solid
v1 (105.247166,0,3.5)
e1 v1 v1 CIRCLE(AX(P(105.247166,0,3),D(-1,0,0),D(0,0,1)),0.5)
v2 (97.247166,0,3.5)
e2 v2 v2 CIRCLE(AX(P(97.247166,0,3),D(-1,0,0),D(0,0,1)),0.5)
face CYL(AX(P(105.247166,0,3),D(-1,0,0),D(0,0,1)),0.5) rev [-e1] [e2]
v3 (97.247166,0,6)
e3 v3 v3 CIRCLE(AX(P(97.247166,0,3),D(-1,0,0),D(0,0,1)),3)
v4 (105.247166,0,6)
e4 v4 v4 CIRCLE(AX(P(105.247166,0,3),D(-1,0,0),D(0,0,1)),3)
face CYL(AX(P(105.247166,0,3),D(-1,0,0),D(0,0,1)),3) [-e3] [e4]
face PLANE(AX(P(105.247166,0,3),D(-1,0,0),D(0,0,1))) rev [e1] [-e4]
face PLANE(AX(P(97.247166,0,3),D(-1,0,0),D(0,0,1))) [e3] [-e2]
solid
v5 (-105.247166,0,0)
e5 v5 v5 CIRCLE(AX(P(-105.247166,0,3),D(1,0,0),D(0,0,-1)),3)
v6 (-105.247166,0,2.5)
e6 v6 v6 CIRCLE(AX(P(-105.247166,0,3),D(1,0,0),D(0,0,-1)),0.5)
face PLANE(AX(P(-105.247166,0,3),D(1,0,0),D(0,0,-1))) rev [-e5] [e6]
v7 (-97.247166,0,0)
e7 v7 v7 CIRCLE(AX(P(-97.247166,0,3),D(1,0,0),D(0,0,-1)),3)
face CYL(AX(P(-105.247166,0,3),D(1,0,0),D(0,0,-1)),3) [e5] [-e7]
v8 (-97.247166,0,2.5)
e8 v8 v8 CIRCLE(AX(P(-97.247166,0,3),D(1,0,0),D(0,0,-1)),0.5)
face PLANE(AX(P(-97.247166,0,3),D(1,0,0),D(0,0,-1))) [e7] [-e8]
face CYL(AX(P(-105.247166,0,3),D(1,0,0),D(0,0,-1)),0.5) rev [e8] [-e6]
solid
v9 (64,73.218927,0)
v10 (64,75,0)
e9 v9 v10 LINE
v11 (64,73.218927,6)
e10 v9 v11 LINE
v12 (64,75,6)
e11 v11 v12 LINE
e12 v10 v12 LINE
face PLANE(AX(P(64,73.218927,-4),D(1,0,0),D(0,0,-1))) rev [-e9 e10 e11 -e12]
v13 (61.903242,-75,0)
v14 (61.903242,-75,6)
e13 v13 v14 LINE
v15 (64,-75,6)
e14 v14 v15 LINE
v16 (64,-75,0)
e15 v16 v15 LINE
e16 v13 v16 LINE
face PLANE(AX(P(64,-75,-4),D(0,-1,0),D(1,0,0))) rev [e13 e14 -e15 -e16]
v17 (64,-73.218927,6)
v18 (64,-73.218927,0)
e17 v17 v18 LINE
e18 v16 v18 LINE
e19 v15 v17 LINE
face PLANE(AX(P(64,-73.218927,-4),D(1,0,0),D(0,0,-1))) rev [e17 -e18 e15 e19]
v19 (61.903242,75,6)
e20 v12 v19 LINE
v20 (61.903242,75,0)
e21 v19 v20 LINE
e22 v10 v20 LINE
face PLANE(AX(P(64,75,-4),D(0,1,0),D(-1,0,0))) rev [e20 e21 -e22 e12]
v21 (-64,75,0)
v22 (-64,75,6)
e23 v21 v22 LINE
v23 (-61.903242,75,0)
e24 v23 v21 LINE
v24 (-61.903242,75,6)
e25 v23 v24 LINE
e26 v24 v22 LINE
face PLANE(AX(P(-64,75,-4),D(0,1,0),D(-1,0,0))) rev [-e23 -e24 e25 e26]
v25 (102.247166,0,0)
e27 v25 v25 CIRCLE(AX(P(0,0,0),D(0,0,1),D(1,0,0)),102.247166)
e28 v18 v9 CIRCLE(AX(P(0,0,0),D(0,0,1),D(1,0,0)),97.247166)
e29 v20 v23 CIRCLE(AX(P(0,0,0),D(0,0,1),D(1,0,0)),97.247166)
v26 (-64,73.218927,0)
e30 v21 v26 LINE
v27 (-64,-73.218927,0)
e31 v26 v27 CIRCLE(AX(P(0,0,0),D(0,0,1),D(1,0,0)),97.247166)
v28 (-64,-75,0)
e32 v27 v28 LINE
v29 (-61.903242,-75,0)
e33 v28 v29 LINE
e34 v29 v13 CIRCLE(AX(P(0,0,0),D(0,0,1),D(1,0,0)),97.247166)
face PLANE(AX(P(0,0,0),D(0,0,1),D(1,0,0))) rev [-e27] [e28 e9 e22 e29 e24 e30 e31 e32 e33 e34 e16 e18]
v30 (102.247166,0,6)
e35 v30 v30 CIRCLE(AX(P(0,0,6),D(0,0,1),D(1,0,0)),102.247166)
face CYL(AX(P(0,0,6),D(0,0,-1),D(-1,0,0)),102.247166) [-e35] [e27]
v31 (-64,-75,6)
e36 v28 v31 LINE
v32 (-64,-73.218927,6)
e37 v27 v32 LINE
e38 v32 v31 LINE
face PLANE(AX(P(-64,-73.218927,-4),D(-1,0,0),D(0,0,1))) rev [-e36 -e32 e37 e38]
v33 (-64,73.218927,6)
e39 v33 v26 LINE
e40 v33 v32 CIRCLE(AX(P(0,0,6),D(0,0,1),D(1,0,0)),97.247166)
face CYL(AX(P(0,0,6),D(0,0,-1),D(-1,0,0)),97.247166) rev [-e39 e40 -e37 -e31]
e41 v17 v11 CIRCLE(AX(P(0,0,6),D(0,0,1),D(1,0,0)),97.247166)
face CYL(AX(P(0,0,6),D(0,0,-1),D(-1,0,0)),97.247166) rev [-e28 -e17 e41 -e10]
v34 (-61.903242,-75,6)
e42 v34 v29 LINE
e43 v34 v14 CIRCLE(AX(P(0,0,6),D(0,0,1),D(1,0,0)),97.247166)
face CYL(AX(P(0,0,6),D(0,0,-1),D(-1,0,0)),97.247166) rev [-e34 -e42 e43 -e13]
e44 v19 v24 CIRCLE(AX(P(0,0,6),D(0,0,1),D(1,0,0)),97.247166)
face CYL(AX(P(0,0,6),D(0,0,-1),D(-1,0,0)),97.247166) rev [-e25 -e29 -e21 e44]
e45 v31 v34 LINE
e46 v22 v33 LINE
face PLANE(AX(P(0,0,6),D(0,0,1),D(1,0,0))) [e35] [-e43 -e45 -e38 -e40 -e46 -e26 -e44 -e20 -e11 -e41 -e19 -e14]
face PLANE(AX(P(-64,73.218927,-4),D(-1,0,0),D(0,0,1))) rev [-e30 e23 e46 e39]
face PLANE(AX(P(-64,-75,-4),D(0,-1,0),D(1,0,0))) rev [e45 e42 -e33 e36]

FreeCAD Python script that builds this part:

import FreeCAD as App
import Part
import Sketcher
Q = App.Units.Quantity


def add_polygon(sketch, points):
    """Adds a closed chain of lines whose ends are joined by coincident constraints."""
    first, n = sketch.GeometryCount, len(points)
    for a, b in zip(points, points[1:] + points[:1]):
        sketch.addGeometry(Part.LineSegment(App.Vector(*a, 0), App.Vector(*b, 0)), False)
    for i in range(n):
        sketch.addConstraint(Sketcher.Constraint("Coincident", first + i, 2, first + (i + 1) % n, 1))

doc = App.newDocument("Part")
body = doc.addObject("PartDesign::Body", "Body")

sketch1 = body.newObject("Sketcher::SketchObject", "Sketch")
sketch1.AttachmentSupport = (doc.getObject("XY_Plane"), [""])
sketch1.MapMode = "FlatFace"
sketch1.addGeometry([
    Part.Circle(App.Vector(0, 0, 0), App.Vector(0, 0, 1), 102),
    Part.Circle(App.Vector(0, 0, 0), App.Vector(0, 0, 1), 97),
], False)
sketch1.addConstraint([
    Sketcher.Constraint("Coincident", 0, 3, -1, 1),
    Sketcher.Constraint("Coincident", 1, 3, -1, 1),
    Sketcher.Constraint("Diameter", 0, Q("204.494332 mm")),
    Sketcher.Constraint("Diameter", 1, Q("194.494332 mm")),
])
pad1 = body.newObject("PartDesign::Pad", "Pad")
pad1.Profile = sketch1
pad1.Length = 6

sketch2 = body.newObject("Sketcher::SketchObject", "Sketch001")
sketch2.AttachmentSupport = (doc.getObject("XY_Plane"), [""])
sketch2.MapMode = "FlatFace"
sketch2.AttachmentOffset = App.Placement(App.Vector(0, 0, 6), App.Rotation())
add_polygon(sketch2, [(-64, 75), (-64, 73.2), (-61.9, 75)])
add_polygon(sketch2, [(61.9, 75), (64, 73.2), (64, 75)])
add_polygon(sketch2, [(61.9, -75), (64, -75), (64, -73.2)])
add_polygon(sketch2, [(-61.9, -75), (-64, -73.2), (-64, -75)])
sketch2.addConstraint([
    Sketcher.Constraint("Vertical", 0),
    Sketcher.Constraint("Horizontal", 2),
    Sketcher.Constraint("Vertical", 4),
    Sketcher.Constraint("Horizontal", 5),
    Sketcher.Constraint("Horizontal", 6),
    Sketcher.Constraint("Vertical", 7),
    Sketcher.Constraint("Vertical", 10),
    Sketcher.Constraint("Horizontal", 11),
    Sketcher.Constraint("Symmetric", 2, 2, 6, 2, -1, 1),
    Sketcher.Constraint("Symmetric", 3, 2, 9, 2, -1, 1),
    Sketcher.Constraint("Symmetric", 5, 2, 11, 2, -1, 1),
    Sketcher.Constraint("Symmetric", 0, 2, 3, 2, -2),
    Sketcher.Constraint("Symmetric", 1, 2, 5, 2, -2),
    Sketcher.Constraint("Parallel", 1, 8),
    Sketcher.Constraint("Horizontal", 7, 2, 9, 2),
    Sketcher.Constraint("DistanceX", 0, 2, -1, 1, Q("64 mm")),
    Sketcher.Constraint("DistanceY", -1, 1, 1, 2, Q("75 mm")),
    Sketcher.Constraint("DistanceX", 2, 2, 2, 1, Q("2.096758 mm")),
    Sketcher.Constraint("Distance", 1, Q("2.751112 mm")),
])
pocket1 = body.newObject("PartDesign::Pocket", "Pocket")
pocket1.Profile = sketch2
pocket1.Length = 10
body2 = doc.addObject("PartDesign::Body", "Body001")

sketch3 = body2.newObject("Sketcher::SketchObject", "Sketch002")
sketch3.AttachmentSupport = (doc.getObject("YZ_Plane001"), [""])
sketch3.MapMode = "FlatFace"
sketch3.AttachmentOffset = App.Placement(App.Vector(0, 0, -97.247166), App.Rotation())
sketch3.addGeometry([
    Part.Circle(App.Vector(0, 3, 0), App.Vector(0, 0, 1), 3),
    Part.Circle(App.Vector(0, 3, 0), App.Vector(0, 0, 1), 0.5),
], False)
sketch3.addConstraint([
    Sketcher.Constraint("Coincident", 1, 3, 0, 3),
    Sketcher.Constraint("PointOnObject", 0, 3, -2),
    Sketcher.Constraint("Diameter", 0, Q("6 mm")),
    Sketcher.Constraint("Diameter", 1, Q("1 mm")),
    Sketcher.Constraint("DistanceY", -1, 1, 0, 3, Q("3 mm")),
])
pad2 = body2.newObject("PartDesign::Pad", "Pad001")
pad2.Profile = sketch3
pad2.Length = 8
pad2.Reversed = True
body3 = doc.addObject("PartDesign::Body", "Body002")

sketch4 = body3.newObject("Sketcher::SketchObject", "Sketch003")
sketch4.AttachmentSupport = (doc.getObject("YZ_Plane002"), [""])
sketch4.MapMode = "FlatFace"
sketch4.AttachmentOffset = App.Placement(App.Vector(0, 0, 97.247166), App.Rotation())
sketch4.addGeometry([
    Part.Circle(App.Vector(0, 3, 0), App.Vector(0, 0, 1), 3),
    Part.Circle(App.Vector(0, 3, 0), App.Vector(0, 0, 1), 0.5),
], False)
sketch4.addConstraint([
    Sketcher.Constraint("Coincident", 1, 3, 0, 3),
    Sketcher.Constraint("PointOnObject", 0, 3, -2),
    Sketcher.Constraint("Diameter", 0, Q("6 mm")),
    Sketcher.Constraint("Diameter", 1, Q("1 mm")),
    Sketcher.Constraint("DistanceY", -1, 1, 0, 3, Q("3 mm")),
])
pad3 = body3.newObject("PartDesign::Pad", "Pad002")
pad3.Profile = sketch4
pad3.Length = 8

doc.recompute()
